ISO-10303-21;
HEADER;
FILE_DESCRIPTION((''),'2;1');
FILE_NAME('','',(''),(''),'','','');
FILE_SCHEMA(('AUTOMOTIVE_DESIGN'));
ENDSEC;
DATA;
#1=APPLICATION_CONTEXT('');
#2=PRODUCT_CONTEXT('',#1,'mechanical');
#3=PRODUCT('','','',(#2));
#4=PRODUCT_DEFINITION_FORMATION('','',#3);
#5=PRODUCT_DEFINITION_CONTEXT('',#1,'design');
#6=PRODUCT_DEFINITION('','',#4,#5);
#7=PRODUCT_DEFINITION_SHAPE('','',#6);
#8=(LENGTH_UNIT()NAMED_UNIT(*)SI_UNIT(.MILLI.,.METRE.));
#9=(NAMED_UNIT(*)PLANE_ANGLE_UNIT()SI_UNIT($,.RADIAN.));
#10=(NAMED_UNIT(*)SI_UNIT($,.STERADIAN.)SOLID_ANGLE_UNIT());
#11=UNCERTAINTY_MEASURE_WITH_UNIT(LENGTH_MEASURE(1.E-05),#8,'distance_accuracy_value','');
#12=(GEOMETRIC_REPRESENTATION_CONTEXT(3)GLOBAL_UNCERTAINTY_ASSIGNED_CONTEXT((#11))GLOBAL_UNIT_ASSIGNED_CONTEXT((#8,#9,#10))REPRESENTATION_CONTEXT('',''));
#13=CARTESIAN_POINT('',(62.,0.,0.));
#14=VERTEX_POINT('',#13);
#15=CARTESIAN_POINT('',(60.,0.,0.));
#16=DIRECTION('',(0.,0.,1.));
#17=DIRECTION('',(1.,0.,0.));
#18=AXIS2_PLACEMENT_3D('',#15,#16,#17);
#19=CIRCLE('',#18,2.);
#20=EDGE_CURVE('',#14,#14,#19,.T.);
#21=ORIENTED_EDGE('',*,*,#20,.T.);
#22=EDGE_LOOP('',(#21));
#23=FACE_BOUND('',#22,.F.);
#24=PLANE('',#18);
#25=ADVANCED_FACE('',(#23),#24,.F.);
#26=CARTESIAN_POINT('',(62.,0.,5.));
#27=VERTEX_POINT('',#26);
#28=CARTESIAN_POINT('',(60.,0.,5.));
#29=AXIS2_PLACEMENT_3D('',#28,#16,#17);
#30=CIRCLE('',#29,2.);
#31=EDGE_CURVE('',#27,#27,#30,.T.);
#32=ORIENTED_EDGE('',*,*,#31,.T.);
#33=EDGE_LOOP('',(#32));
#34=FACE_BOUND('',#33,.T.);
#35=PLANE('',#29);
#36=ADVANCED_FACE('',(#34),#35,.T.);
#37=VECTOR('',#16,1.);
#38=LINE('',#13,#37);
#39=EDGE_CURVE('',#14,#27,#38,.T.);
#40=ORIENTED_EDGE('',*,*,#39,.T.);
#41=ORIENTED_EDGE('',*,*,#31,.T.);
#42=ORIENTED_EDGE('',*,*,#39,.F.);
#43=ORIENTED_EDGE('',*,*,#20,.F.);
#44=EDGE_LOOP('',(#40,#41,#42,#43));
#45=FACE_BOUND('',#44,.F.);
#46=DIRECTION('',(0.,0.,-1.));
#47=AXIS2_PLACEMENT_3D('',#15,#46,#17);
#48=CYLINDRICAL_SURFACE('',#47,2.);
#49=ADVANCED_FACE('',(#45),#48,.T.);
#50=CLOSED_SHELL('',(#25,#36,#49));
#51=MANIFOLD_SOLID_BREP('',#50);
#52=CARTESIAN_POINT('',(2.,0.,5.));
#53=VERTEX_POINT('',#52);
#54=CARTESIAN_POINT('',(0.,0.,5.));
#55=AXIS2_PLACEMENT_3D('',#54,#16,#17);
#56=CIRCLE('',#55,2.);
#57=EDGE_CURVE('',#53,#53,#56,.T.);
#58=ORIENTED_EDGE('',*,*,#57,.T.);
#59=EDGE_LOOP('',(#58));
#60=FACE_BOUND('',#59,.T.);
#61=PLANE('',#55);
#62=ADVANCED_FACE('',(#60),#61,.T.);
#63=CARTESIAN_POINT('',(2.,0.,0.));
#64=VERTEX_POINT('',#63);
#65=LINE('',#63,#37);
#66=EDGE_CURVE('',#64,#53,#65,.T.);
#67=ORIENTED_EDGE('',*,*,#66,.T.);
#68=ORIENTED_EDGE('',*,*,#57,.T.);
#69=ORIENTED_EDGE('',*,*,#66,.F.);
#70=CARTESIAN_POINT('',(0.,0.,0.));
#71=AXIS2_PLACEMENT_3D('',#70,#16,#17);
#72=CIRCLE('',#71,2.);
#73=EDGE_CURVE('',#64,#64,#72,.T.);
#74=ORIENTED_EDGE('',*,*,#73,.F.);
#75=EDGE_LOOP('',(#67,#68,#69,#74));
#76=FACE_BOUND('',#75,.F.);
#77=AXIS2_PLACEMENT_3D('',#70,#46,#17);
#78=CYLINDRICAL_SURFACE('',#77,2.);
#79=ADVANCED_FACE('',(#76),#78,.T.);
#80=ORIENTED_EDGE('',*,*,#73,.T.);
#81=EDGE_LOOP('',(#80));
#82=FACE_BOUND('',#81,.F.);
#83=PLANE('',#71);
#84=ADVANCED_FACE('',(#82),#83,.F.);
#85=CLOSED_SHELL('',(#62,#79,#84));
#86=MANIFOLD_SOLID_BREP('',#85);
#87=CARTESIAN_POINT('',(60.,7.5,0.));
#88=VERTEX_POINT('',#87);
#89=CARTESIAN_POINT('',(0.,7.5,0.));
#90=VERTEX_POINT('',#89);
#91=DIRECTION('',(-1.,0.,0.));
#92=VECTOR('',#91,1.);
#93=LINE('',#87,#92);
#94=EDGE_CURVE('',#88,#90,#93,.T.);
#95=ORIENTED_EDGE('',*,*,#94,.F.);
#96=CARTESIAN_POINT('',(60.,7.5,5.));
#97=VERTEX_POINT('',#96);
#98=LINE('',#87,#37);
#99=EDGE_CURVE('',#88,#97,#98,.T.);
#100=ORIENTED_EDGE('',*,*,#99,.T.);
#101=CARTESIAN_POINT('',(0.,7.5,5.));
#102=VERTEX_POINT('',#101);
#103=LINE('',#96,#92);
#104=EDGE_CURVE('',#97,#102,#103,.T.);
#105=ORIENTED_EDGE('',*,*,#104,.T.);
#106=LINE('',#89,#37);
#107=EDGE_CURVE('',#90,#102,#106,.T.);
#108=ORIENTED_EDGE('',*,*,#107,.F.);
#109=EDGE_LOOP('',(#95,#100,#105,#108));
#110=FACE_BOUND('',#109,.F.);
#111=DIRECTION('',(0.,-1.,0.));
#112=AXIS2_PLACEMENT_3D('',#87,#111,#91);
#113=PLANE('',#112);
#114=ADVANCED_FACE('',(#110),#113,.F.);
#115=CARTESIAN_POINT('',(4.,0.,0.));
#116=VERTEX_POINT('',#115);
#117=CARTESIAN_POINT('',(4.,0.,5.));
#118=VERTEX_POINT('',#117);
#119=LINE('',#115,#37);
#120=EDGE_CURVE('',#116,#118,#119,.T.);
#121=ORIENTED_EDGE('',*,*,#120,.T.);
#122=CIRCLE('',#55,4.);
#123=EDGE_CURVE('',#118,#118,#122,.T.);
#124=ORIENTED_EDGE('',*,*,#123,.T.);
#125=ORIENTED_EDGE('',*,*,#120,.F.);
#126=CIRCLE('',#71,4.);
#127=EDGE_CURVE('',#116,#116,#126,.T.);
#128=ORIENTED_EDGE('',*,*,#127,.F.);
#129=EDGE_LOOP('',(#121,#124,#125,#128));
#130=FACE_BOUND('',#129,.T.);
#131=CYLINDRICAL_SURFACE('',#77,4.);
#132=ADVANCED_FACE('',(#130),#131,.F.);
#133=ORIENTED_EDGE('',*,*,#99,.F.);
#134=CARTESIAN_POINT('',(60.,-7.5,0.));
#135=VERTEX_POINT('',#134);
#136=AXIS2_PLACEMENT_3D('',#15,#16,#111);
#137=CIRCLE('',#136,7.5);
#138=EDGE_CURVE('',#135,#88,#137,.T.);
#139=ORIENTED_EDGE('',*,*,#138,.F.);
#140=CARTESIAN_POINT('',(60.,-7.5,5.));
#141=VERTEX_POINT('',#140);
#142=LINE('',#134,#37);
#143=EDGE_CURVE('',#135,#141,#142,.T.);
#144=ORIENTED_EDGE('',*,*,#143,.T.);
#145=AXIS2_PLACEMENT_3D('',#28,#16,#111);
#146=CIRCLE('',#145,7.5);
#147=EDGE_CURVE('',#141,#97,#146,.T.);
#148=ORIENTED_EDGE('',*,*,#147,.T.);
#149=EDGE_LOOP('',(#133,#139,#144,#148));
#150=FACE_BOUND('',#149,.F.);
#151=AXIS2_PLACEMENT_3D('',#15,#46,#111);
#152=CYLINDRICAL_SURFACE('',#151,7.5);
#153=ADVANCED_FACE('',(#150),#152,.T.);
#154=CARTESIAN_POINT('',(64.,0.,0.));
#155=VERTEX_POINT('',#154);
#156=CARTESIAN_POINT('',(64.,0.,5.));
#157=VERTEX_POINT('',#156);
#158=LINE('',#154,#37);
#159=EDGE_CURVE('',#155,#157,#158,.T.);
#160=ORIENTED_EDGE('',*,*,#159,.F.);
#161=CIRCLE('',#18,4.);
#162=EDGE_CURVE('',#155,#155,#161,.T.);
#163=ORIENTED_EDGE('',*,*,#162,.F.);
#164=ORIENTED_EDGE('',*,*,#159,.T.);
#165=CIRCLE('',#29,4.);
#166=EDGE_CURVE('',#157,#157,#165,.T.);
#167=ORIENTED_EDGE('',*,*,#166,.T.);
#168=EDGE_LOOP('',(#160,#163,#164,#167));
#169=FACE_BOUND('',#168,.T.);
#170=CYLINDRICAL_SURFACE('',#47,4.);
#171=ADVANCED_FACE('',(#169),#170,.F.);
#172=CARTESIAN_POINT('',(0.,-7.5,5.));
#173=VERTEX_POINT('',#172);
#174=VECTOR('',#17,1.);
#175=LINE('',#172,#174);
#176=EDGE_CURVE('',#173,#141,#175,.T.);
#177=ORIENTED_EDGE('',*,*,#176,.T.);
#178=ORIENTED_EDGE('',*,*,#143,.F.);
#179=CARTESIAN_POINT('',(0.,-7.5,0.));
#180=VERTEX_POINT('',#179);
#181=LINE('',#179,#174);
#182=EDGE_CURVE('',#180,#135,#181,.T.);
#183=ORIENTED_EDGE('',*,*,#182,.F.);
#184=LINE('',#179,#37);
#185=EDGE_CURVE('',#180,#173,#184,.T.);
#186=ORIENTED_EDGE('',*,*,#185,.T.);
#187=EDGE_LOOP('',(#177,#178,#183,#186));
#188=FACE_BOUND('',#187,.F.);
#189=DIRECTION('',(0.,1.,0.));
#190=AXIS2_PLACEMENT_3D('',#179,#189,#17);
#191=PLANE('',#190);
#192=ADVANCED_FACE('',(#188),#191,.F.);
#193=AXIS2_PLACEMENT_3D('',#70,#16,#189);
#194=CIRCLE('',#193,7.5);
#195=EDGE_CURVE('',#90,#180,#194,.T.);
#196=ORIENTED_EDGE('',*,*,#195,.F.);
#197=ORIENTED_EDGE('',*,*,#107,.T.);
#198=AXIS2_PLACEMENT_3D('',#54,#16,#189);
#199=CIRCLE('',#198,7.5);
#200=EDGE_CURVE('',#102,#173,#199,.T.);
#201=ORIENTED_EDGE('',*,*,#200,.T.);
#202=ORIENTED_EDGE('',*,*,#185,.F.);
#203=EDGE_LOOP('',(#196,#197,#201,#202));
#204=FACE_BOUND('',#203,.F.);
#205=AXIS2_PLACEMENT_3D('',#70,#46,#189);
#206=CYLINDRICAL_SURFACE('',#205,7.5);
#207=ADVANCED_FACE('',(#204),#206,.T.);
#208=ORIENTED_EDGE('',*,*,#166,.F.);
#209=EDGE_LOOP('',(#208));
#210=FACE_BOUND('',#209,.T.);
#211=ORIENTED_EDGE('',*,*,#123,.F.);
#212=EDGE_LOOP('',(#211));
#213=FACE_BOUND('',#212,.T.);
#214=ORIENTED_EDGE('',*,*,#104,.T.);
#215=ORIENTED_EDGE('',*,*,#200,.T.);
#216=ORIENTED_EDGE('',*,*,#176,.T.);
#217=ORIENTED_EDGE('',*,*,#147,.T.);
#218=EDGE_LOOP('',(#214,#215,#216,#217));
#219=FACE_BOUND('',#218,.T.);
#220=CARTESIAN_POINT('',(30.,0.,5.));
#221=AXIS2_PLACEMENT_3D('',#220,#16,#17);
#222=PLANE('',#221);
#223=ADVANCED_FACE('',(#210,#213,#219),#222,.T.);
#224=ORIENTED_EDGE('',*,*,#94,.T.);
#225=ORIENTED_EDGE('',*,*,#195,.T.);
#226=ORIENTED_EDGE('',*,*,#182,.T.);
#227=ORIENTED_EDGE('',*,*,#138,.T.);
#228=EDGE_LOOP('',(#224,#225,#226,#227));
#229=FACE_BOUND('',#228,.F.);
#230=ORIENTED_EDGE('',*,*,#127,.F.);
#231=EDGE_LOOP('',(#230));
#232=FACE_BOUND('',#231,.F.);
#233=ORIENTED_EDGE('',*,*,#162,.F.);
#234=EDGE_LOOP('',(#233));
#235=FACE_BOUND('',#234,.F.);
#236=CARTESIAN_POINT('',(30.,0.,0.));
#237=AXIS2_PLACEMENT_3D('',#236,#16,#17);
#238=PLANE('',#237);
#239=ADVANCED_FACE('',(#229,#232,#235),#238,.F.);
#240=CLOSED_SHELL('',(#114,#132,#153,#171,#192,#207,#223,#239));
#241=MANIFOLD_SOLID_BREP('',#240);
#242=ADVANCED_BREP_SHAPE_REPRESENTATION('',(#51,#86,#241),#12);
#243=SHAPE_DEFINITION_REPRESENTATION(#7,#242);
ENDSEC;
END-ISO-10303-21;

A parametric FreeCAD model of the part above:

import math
import FreeCAD as App
import Part
import Sketcher
Q = App.Units.Quantity

doc = App.newDocument("Part")
params = doc.addObject("Spreadsheet::Sheet", "Params")
for row, (alias, value) in enumerate([
    ("sketch1_diameter", "8 mm"),
    ("sketch1_radius", "7.5 mm"),
    ("sketch1_width", "60 mm"),
    ("pad1_length", "5 mm"),
    ("sketch2_diameter", "4 mm"),
    ("pad2_length", "5 mm"),
], start=1):
    params.set(f"A{row}", alias)
    params.set(f"B{row}", "=" + value)
    params.setAlias(f"B{row}", alias)

body = doc.addObject("PartDesign::Body", "Body")

sketch1 = body.newObject("Sketcher::SketchObject", "Sketch")
sketch1.AttachmentSupport = (doc.getObject("XY_Plane"), [""])
sketch1.MapMode = "FlatFace"
sketch1.addGeometry([
    Part.LineSegment(App.Vector(60, 7.5, 0), App.Vector(0, 7.5, 0)),
    Part.ArcOfCircle(Part.Circle(App.Vector(0, 0, 0), App.Vector(0, 0, 1), 7.5), math.radians(90), math.radians(270)),
    Part.LineSegment(App.Vector(0, -7.5, 0), App.Vector(60, -7.5, 0)),
    Part.ArcOfCircle(Part.Circle(App.Vector(60, 0, 0), App.Vector(0, 0, 1), 7.5), math.radians(-90), math.radians(90)),
    Part.Circle(App.Vector(0, 0, 0), App.Vector(0, 0, 1), 4),
    Part.Circle(App.Vector(60, 0, 0), App.Vector(0, 0, 1), 4),
], False)
sketch1.addConstraint([
    Sketcher.Constraint("Tangent", 0, 2, 1, 1),
    Sketcher.Constraint("Tangent", 1, 2, 2, 1),
    Sketcher.Constraint("Tangent", 2, 2, 3, 1),
    Sketcher.Constraint("Tangent", 3, 2, 0, 1),
    Sketcher.Constraint("Horizontal", 0),
    Sketcher.Constraint("Horizontal", 2),
    Sketcher.Constraint("Coincident", 1, 3, -1, 1),
    Sketcher.Constraint("Coincident", 4, 3, -1, 1),
    Sketcher.Constraint("Coincident", 5, 3, 3, 3),
    Sketcher.Constraint("Equal", 4, 5),
    Sketcher.Constraint("Diameter", 4, Q("8 mm")),
    Sketcher.Constraint("Radius", 1, Q("7.5 mm")),
    Sketcher.Constraint("DistanceX", 0, 2, 0, 1, Q("60 mm")),
])
sketch1.setExpression("Constraints[10]", "Params.sketch1_diameter")
sketch1.setExpression("Constraints[11]", "Params.sketch1_radius")
sketch1.setExpression("Constraints[12]", "Params.sketch1_width")
pad1 = body.newObject("PartDesign::Pad", "Pad")
pad1.Profile = sketch1
pad1.setExpression("Length", "Params.pad1_length")
body2 = doc.addObject("PartDesign::Body", "Body001")
body2.AllowCompound = True

sketch2 = body2.newObject("Sketcher::SketchObject", "Sketch001")
sketch2.AttachmentSupport = (doc.getObject("XY_Plane001"), [""])
sketch2.MapMode = "FlatFace"
sketch2.addGeometry([
    Part.Circle(App.Vector(0, 0, 0), App.Vector(0, 0, 1), 2),
    Part.Circle(App.Vector(60, 0, 0), App.Vector(0, 0, 1), 2),
], False)
sketch2.addConstraint([
    Sketcher.Constraint("Coincident", 0, 3, -1, 1),
    Sketcher.Constraint("Equal", 0, 1),
    Sketcher.Constraint("PointOnObject", 1, 3, -1),
    Sketcher.Constraint("Diameter", 0, Q("4 mm")),
    Sketcher.Constraint("DistanceX", -1, 1, 1, 3, Q("60 mm")),
])
sketch2.setExpression("Constraints[3]", "Params.sketch2_diameter")
pad2 = body2.newObject("PartDesign::Pad", "Pad001")
pad2.Profile = sketch2
pad2.setExpression("Length", "Params.pad2_length")

doc.recompute()
